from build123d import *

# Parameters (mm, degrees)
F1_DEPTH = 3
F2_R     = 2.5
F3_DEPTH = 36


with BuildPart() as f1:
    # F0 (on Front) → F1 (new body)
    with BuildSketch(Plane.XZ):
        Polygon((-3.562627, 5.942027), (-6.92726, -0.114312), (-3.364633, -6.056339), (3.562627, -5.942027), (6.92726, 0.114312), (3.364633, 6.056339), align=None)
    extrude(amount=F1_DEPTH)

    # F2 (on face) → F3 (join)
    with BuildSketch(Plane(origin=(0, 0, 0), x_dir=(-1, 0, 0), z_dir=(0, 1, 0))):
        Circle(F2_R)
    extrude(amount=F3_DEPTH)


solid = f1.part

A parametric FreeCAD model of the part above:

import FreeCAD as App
import Part
import Sketcher

V = App.Vector

doc = App.newDocument("Part")
body = doc.addObject("PartDesign::Body", "Body")

# Sketch on XZ plane
sketch1 = doc.addObject("Sketcher::SketchObject", "Sketch")
body.addObject(sketch1)
sketch1.AttachmentSupport = (doc.XZ_Plane, [""])
sketch1.MapMode = "FlatFace"
sketch1.addGeometry([
    Part.LineSegment(V(-4, 6, 0), V(-7, 0, 0)),  # 0
    Part.LineSegment(V(-7, 0, 0), V(-3, -6, 0)),  # 1
    Part.LineSegment(V(-3, -6, 0), V(4, -6, 0)),  # 2
    Part.LineSegment(V(4, -6, 0), V(7, 0, 0)),  # 3
    Part.LineSegment(V(7, 0, 0), V(3, 6, 0)),  # 4
    Part.LineSegment(V(3, 6, 0), V(-4, 6, 0)),  # 5
], False)
sketch1.addConstraint([
    Sketcher.Constraint("Coincident", 0, 2, 1, 1),
    Sketcher.Constraint("Coincident", 1, 2, 2, 1),
    Sketcher.Constraint("Coincident", 2, 2, 3, 1),
    Sketcher.Constraint("Coincident", 3, 2, 4, 1),
    Sketcher.Constraint("Coincident", 4, 2, 5, 1),
    Sketcher.Constraint("Coincident", 5, 2, 0, 1),
    Sketcher.Constraint("Symmetric", 0, 2, 3, 2, -1, 1),
    Sketcher.Constraint("Symmetric", 1, 2, 4, 2, -1, 1),
    Sketcher.Constraint("Symmetric", 2, 2, 5, 2, -1, 1),
    Sketcher.Constraint("Equal", 0, 1),
    Sketcher.Constraint("Equal", 1, 2),
    Sketcher.Constraint("DistanceX", 0, 2, -1, 1, 6.92726),
    Sketcher.Constraint("DistanceY", 1, 2, -1, 1, 6.056339),
    Sketcher.Constraint("DistanceX", 1, 2, 2, 2, 6.92726),
    Sketcher.Constraint("DistanceY", 1, 2, 2, 2, 0.114312),
])
pad1 = doc.addObject("PartDesign::Pad", "Pad")
body.addObject(pad1)
pad1.Profile = sketch1
pad1.Length = 3

# Sketch on XZ plane
sketch2 = doc.addObject("Sketcher::SketchObject", "Sketch001")
body.addObject(sketch2)
sketch2.AttachmentSupport = (doc.XZ_Plane, [""])
sketch2.MapMode = "FlatFace"
sketch2.addGeometry(Part.Circle(V(0, 0, 0), V(0, 0, 1), 2.5), False)
sketch2.addConstraint([
    Sketcher.Constraint("Coincident", 0, 3, -1, 1),
    Sketcher.Constraint("Diameter", 0, 5.0),
])
pad2 = doc.addObject("PartDesign::Pad", "Pad001")
body.addObject(pad2)
pad2.Profile = sketch2
pad2.Length = 36
pad2.Reversed = True

doc.recompute()
